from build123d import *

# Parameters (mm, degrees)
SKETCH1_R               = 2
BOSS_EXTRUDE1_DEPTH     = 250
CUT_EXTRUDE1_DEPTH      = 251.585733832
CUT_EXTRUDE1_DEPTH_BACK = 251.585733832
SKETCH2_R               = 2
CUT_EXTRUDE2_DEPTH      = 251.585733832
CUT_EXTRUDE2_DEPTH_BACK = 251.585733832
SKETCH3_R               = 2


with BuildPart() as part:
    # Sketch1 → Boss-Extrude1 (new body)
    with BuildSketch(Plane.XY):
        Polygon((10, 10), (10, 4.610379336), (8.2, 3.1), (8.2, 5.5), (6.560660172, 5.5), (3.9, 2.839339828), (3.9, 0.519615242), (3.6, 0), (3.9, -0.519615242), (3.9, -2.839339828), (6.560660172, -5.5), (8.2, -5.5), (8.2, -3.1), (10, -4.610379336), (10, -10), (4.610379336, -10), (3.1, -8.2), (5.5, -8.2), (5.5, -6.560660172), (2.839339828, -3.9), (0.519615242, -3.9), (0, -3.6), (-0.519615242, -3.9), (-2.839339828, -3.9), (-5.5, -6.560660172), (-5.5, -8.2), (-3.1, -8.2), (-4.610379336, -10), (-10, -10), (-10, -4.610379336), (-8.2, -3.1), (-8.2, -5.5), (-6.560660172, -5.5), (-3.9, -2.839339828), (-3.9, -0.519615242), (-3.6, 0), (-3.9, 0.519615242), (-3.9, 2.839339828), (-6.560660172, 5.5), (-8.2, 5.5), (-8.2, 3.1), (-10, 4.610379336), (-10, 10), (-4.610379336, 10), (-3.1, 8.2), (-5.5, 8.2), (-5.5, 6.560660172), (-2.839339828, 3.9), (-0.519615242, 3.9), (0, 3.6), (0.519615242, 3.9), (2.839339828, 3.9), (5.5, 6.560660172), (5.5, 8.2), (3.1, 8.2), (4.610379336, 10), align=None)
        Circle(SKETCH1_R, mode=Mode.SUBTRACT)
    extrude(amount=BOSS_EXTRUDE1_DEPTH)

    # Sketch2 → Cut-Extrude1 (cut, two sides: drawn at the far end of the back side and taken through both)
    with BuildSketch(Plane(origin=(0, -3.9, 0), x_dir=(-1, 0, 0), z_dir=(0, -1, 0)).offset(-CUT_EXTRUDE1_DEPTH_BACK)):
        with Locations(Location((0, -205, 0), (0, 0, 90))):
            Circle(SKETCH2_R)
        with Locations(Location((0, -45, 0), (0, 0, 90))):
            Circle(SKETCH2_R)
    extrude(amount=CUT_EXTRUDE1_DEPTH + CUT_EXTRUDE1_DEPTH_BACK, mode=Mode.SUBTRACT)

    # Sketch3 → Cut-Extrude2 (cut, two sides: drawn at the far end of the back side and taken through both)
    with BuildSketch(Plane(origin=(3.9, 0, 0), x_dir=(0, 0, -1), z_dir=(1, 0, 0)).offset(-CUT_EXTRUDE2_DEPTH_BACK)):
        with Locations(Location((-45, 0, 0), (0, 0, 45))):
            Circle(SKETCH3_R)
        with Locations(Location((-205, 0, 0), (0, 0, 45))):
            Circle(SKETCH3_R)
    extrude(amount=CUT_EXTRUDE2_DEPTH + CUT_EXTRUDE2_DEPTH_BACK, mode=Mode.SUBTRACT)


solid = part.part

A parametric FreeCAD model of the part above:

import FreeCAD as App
import Part
import Sketcher
from FreeCAD import Vector
Q = App.Units.Quantity

doc = App.newDocument("Part")
params = doc.addObject("Spreadsheet::Sheet", "Params")
for row, (alias, value) in enumerate([
    ("sketch1_diameter", "4 mm"),
    ("sketch1_width", "2.4 mm"),
    ("sketch1_length", "0.6 mm"),
    ("pad1_length", "250 mm"),
    ("sketch2_diameter", "4 mm"),
    ("sketch3_diameter", "4 mm"),
], start=1):
    params.set(f"A{row}", alias)
    params.set(f"B{row}", "=" + value)
    params.setAlias(f"B{row}", alias)

body = doc.addObject("PartDesign::Body", "Body")

sketch1 = body.newObject("Sketcher::SketchObject", "Sketch")
sketch1.AttachmentSupport = (doc.getObject("XY_Plane"), [""])
sketch1.MapMode = "FlatFace"
sketch1.addGeometry([
    Part.LineSegment(Vector(10, 4.6, 0), Vector(10, 10, 0)),
    Part.LineSegment(Vector(10, 10, 0), Vector(4.6, 10, 0)),
    Part.LineSegment(Vector(4.6, 10, 0), Vector(3.1, 8.2, 0)),
    Part.LineSegment(Vector(3.1, 8.2, 0), Vector(5.5, 8.2, 0)),
    Part.LineSegment(Vector(5.5, 8.2, 0), Vector(5.5, 6.6, 0)),
    Part.LineSegment(Vector(5.5, 6.6, 0), Vector(2.8, 3.9, 0)),
    Part.LineSegment(Vector(2.8, 3.9, 0), Vector(0.5, 3.9, 0)),
    Part.LineSegment(Vector(0.5, 3.9, 0), Vector(0, 3.6, 0)),
    Part.LineSegment(Vector(0, 3.6, 0), Vector(-0.5, 3.9, 0)),
    Part.LineSegment(Vector(-0.5, 3.9, 0), Vector(-2.8, 3.9, 0)),
    Part.LineSegment(Vector(-2.8, 3.9, 0), Vector(-5.5, 6.6, 0)),
    Part.LineSegment(Vector(-5.5, 6.6, 0), Vector(-5.5, 8.2, 0)),
    Part.LineSegment(Vector(-5.5, 8.2, 0), Vector(-3.1, 8.2, 0)),
    Part.LineSegment(Vector(-3.1, 8.2, 0), Vector(-4.6, 10, 0)),
    Part.LineSegment(Vector(-4.6, 10, 0), Vector(-10, 10, 0)),
    Part.LineSegment(Vector(-10, 10, 0), Vector(-10, 4.6, 0)),
    Part.LineSegment(Vector(-10, 4.6, 0), Vector(-8.2, 3.1, 0)),
    Part.LineSegment(Vector(-8.2, 3.1, 0), Vector(-8.2, 5.5, 0)),
    Part.LineSegment(Vector(-8.2, 5.5, 0), Vector(-6.6, 5.5, 0)),
    Part.LineSegment(Vector(-6.6, 5.5, 0), Vector(-3.9, 2.8, 0)),
    Part.LineSegment(Vector(-3.9, 2.8, 0), Vector(-3.9, 0.5, 0)),
    Part.LineSegment(Vector(-3.9, 0.5, 0), Vector(-3.6, 0, 0)),
    Part.LineSegment(Vector(-3.6, 0, 0), Vector(-3.9, -0.5, 0)),
    Part.LineSegment(Vector(-3.9, -0.5, 0), Vector(-3.9, -2.8, 0)),
    Part.LineSegment(Vector(-3.9, -2.8, 0), Vector(-6.6, -5.5, 0)),
    Part.LineSegment(Vector(-6.6, -5.5, 0), Vector(-8.2, -5.5, 0)),
    Part.LineSegment(Vector(-8.2, -5.5, 0), Vector(-8.2, -3.1, 0)),
    Part.LineSegment(Vector(-8.2, -3.1, 0), Vector(-10, -4.6, 0)),
    Part.LineSegment(Vector(-10, -4.6, 0), Vector(-10, -10, 0)),
    Part.LineSegment(Vector(-10, -10, 0), Vector(-4.6, -10, 0)),
    Part.LineSegment(Vector(-4.6, -10, 0), Vector(-3.1, -8.2, 0)),
    Part.LineSegment(Vector(-3.1, -8.2, 0), Vector(-5.5, -8.2, 0)),
    Part.LineSegment(Vector(-5.5, -8.2, 0), Vector(-5.5, -6.6, 0)),
    Part.LineSegment(Vector(-5.5, -6.6, 0), Vector(-2.8, -3.9, 0)),
    Part.LineSegment(Vector(-2.8, -3.9, 0), Vector(-0.5, -3.9, 0)),
    Part.LineSegment(Vector(-0.5, -3.9, 0), Vector(0, -3.6, 0)),
    Part.LineSegment(Vector(0, -3.6, 0), Vector(0.5, -3.9, 0)),
    Part.LineSegment(Vector(0.5, -3.9, 0), Vector(2.8, -3.9, 0)),
    Part.LineSegment(Vector(2.8, -3.9, 0), Vector(5.5, -6.6, 0)),
    Part.LineSegment(Vector(5.5, -6.6, 0), Vector(5.5, -8.2, 0)),
    Part.LineSegment(Vector(5.5, -8.2, 0), Vector(3.1, -8.2, 0)),
    Part.LineSegment(Vector(3.1, -8.2, 0), Vector(4.6, -10, 0)),
    Part.LineSegment(Vector(4.6, -10, 0), Vector(10, -10, 0)),
    Part.LineSegment(Vector(10, -10, 0), Vector(10, -4.6, 0)),
    Part.LineSegment(Vector(10, -4.6, 0), Vector(8.2, -3.1, 0)),
    Part.LineSegment(Vector(8.2, -3.1, 0), Vector(8.2, -5.5, 0)),
    Part.LineSegment(Vector(8.2, -5.5, 0), Vector(6.6, -5.5, 0)),
    Part.LineSegment(Vector(6.6, -5.5, 0), Vector(3.9, -2.8, 0)),
    Part.LineSegment(Vector(3.9, -2.8, 0), Vector(3.9, -0.5, 0)),
    Part.LineSegment(Vector(3.9, -0.5, 0), Vector(3.6, 0, 0)),
    Part.LineSegment(Vector(3.6, 0, 0), Vector(3.9, 0.5, 0)),
    Part.LineSegment(Vector(3.9, 0.5, 0), Vector(3.9, 2.8, 0)),
    Part.LineSegment(Vector(3.9, 2.8, 0), Vector(6.6, 5.5, 0)),
    Part.LineSegment(Vector(6.6, 5.5, 0), Vector(8.2, 5.5, 0)),
    Part.LineSegment(Vector(8.2, 5.5, 0), Vector(8.2, 3.1, 0)),
    Part.LineSegment(Vector(8.2, 3.1, 0), Vector(10, 4.6, 0)),
    Part.Circle(Vector(0, 0, 0), Vector(0, 0, 1), 2),
], False)
sketch1.addConstraint([
    Sketcher.Constraint("Coincident", 0, 2, 1, 1),
    Sketcher.Constraint("Coincident", 1, 2, 2, 1),
    Sketcher.Constraint("Coincident", 2, 2, 3, 1),
    Sketcher.Constraint("Coincident", 3, 2, 4, 1),
    Sketcher.Constraint("Coincident", 4, 2, 5, 1),
    Sketcher.Constraint("Coincident", 5, 2, 6, 1),
    Sketcher.Constraint("Coincident", 6, 2, 7, 1),
    Sketcher.Constraint("Coincident", 7, 2, 8, 1),
    Sketcher.Constraint("Coincident", 8, 2, 9, 1),
    Sketcher.Constraint("Coincident", 9, 2, 10, 1),
    Sketcher.Constraint("Coincident", 10, 2, 11, 1),
    Sketcher.Constraint("Coincident", 11, 2, 12, 1),
    Sketcher.Constraint("Coincident", 12, 2, 13, 1),
    Sketcher.Constraint("Coincident", 13, 2, 14, 1),
    Sketcher.Constraint("Coincident", 14, 2, 15, 1),
    Sketcher.Constraint("Coincident", 15, 2, 16, 1),
    Sketcher.Constraint("Coincident", 16, 2, 17, 1),
    Sketcher.Constraint("Coincident", 17, 2, 18, 1),
    Sketcher.Constraint("Coincident", 18, 2, 19, 1),
    Sketcher.Constraint("Coincident", 19, 2, 20, 1),
    Sketcher.Constraint("Coincident", 20, 2, 21, 1),
    Sketcher.Constraint("Coincident", 21, 2, 22, 1),
    Sketcher.Constraint("Coincident", 22, 2, 23, 1),
    Sketcher.Constraint("Coincident", 23, 2, 24, 1),
    Sketcher.Constraint("Coincident", 24, 2, 25, 1),
    Sketcher.Constraint("Coincident", 25, 2, 26, 1),
    Sketcher.Constraint("Coincident", 26, 2, 27, 1),
    Sketcher.Constraint("Coincident", 27, 2, 28, 1),
    Sketcher.Constraint("Coincident", 28, 2, 29, 1),
    Sketcher.Constraint("Coincident", 29, 2, 30, 1),
    Sketcher.Constraint("Coincident", 30, 2, 31, 1),
    Sketcher.Constraint("Coincident", 31, 2, 32, 1),
    Sketcher.Constraint("Coincident", 32, 2, 33, 1),
    Sketcher.Constraint("Coincident", 33, 2, 34, 1),
    Sketcher.Constraint("Coincident", 34, 2, 35, 1),
    Sketcher.Constraint("Coincident", 35, 2, 36, 1),
    Sketcher.Constraint("Coincident", 36, 2, 37, 1),
    Sketcher.Constraint("Coincident", 37, 2, 38, 1),
    Sketcher.Constraint("Coincident", 38, 2, 39, 1),
    Sketcher.Constraint("Coincident", 39, 2, 40, 1),
    Sketcher.Constraint("Coincident", 40, 2, 41, 1),
    Sketcher.Constraint("Coincident", 41, 2, 42, 1),
    Sketcher.Constraint("Coincident", 42, 2, 43, 1),
    Sketcher.Constraint("Coincident", 43, 2, 44, 1),
    Sketcher.Constraint("Coincident", 44, 2, 45, 1),
    Sketcher.Constraint("Coincident", 45, 2, 46, 1),
    Sketcher.Constraint("Coincident", 46, 2, 47, 1),
    Sketcher.Constraint("Coincident", 47, 2, 48, 1),
    Sketcher.Constraint("Coincident", 48, 2, 49, 1),
    Sketcher.Constraint("Coincident", 49, 2, 50, 1),
    Sketcher.Constraint("Coincident", 50, 2, 51, 1),
    Sketcher.Constraint("Coincident", 51, 2, 52, 1),
    Sketcher.Constraint("Coincident", 52, 2, 53, 1),
    Sketcher.Constraint("Coincident", 53, 2, 54, 1),
    Sketcher.Constraint("Coincident", 54, 2, 55, 1),
    Sketcher.Constraint("Coincident", 55, 2, 0, 1),
    Sketcher.Constraint("Vertical", 0),
    Sketcher.Constraint("Horizontal", 1),
    Sketcher.Constraint("Horizontal", 3),
    Sketcher.Constraint("Vertical", 4),
    Sketcher.Constraint("Horizontal", 6),
    Sketcher.Constraint("Horizontal", 9),
    Sketcher.Constraint("Vertical", 11),
    Sketcher.Constraint("Horizontal", 12),
    Sketcher.Constraint("Horizontal", 14),
    Sketcher.Constraint("Vertical", 15),
    Sketcher.Constraint("Vertical", 17),
    Sketcher.Constraint("Horizontal", 18),
    Sketcher.Constraint("Vertical", 20),
    Sketcher.Constraint("Vertical", 23),
    Sketcher.Constraint("Horizontal", 25),
    Sketcher.Constraint("Vertical", 26),
    Sketcher.Constraint("Vertical", 28),
    Sketcher.Constraint("Horizontal", 29),
    Sketcher.Constraint("Horizontal", 31),
    Sketcher.Constraint("Vertical", 32),
    Sketcher.Constraint("Horizontal", 34),
    Sketcher.Constraint("Horizontal", 37),
    Sketcher.Constraint("Vertical", 39),
    Sketcher.Constraint("Horizontal", 40),
    Sketcher.Constraint("Horizontal", 42),
    Sketcher.Constraint("Vertical", 43),
    Sketcher.Constraint("Vertical", 45),
    Sketcher.Constraint("Horizontal", 46),
    Sketcher.Constraint("Vertical", 48),
    Sketcher.Constraint("Vertical", 51),
    Sketcher.Constraint("Horizontal", 53),
    Sketcher.Constraint("Vertical", 54),
    Sketcher.Constraint("Coincident", 56, 3, -1, 1),
    Sketcher.Constraint("Symmetric", 0, 2, 28, 2, -1, 1),
    Sketcher.Constraint("Symmetric", 2, 2, 30, 2, -1, 1),
    Sketcher.Constraint("Symmetric", 4, 2, 32, 2, -1, 1),
    Sketcher.Constraint("Symmetric", 5, 2, 33, 2, -1, 1),
    Sketcher.Constraint("Symmetric", 7, 2, 35, 2, -1, 1),
    Sketcher.Constraint("Symmetric", 8, 2, 36, 2, -1, 1),
    Sketcher.Constraint("Symmetric", 10, 2, 38, 2, -1, 1),
    Sketcher.Constraint("Symmetric", 12, 2, 40, 2, -1, 1),
    Sketcher.Constraint("Symmetric", 13, 2, 41, 2, -1, 1),
    Sketcher.Constraint("Symmetric", 15, 2, 43, 2, -1, 1),
    Sketcher.Constraint("Symmetric", 16, 2, 44, 2, -1, 1),
    Sketcher.Constraint("Symmetric", 18, 2, 46, 2, -1, 1),
    Sketcher.Constraint("Symmetric", 19, 2, 47, 2, -1, 1),
    Sketcher.Constraint("Symmetric", 21, 2, 49, 2, -1, 1),
    Sketcher.Constraint("Symmetric", 22, 2, 50, 2, -1, 1),
    Sketcher.Constraint("Symmetric", 24, 2, 52, 2, -1, 1),
    Sketcher.Constraint("Symmetric", 26, 2, 54, 2, -1, 1),
    Sketcher.Constraint("Symmetric", 6, 2, 8, 2, -2),
    Sketcher.Constraint("Symmetric", 4, 2, 10, 2, -2),
    Sketcher.Constraint("Symmetric", 2, 2, 12, 2, -2),
    Sketcher.Constraint("Symmetric", 1, 2, 13, 2, -2),
    Sketcher.Constraint("Symmetric", 27, 2, 43, 2, -2),
    Sketcher.Constraint("Symmetric", 26, 2, 44, 2, -2),
    Sketcher.Constraint("Symmetric", 24, 2, 46, 2, -2),
    Sketcher.Constraint("Symmetric", 23, 2, 47, 2, -2),
    Sketcher.Constraint("PointOnObject", 7, 2, -2),
    Sketcher.Constraint("PointOnObject", 21, 2, -1),
    Sketcher.Constraint("Perpendicular", 5, 10),
    Sketcher.Constraint("Perpendicular", 2, 16),
    Sketcher.Constraint("Parallel", 10, 19),
    Sketcher.Constraint("Perpendicular", 7, 21),
    Sketcher.Constraint("Perpendicular", 8, 22),
    Sketcher.Constraint("Perpendicular", 19, 24),
    Sketcher.Constraint("Perpendicular", 16, 30),
    Sketcher.Constraint("Perpendicular", 21, 35),
    Sketcher.Constraint("Perpendicular", 33, 38),
    Sketcher.Constraint("Perpendicular", 35, 49),
    Sketcher.Constraint("Perpendicular", 47, 52),
    Sketcher.Constraint("Perpendicular", 41, 55),
    Sketcher.Constraint("Equal", 42, 0),
    Sketcher.Constraint("Equal", 53, 4),
    Sketcher.Constraint("Equal", 40, 17),
    Sketcher.Constraint("Equal", 37, 20),
    Sketcher.Constraint("Equal", 13, 16),
    Sketcher.Constraint("Equal", 10, 19),
    Sketcher.Constraint("Equal", 8, 21),
    Sketcher.Constraint("Diameter", 56, 4.0),
    Sketcher.Constraint("Angle", 2, Q("-130 deg")),
    Sketcher.Constraint("Angle", 7, Q("-150 deg")),
    Sketcher.Constraint("DistanceX", 3, 1, 3, 2, 2.4),
    Sketcher.Constraint("DistanceX", -1, 1, 0, 2, 10.0),
    Sketcher.Constraint("Distance", 7, 0.6),
    Sketcher.Constraint("DistanceX", -1, 1, 2, 2, 3.1),
    Sketcher.Constraint("DistanceY", -1, 1, 2, 2, 8.2),
    Sketcher.Constraint("DistanceY", -1, 1, 5, 2, 3.9),
    Sketcher.Constraint("DistanceX", 18, 1, 18, 2, 1.63934),
])
sketch1.setExpression("Constraints[135]", "Params.sketch1_diameter")
sketch1.setExpression("Constraints[138]", "Params.sketch1_width")
sketch1.setExpression("Constraints[140]", "Params.sketch1_length")
pad1 = body.newObject("PartDesign::Pad", "Pad")
pad1.Profile = sketch1
pad1.setExpression("Length", "Params.pad1_length")

sketch2 = body.newObject("Sketcher::SketchObject", "Sketch001")
sketch2.AttachmentSupport = (doc.getObject("XZ_Plane"), [""])
sketch2.MapMode = "FlatFace"
sketch2.AttachmentOffset = App.Placement(Vector(0, 0, 3.9), App.Rotation())
sketch2.addGeometry([
    Part.Circle(Vector(0, 205, 0), Vector(0, 0, 1), 2),
    Part.Circle(Vector(0, 45, 0), Vector(0, 0, 1), 2),
], False)
sketch2.addConstraint([
    Sketcher.Constraint("Equal", 0, 1),
    Sketcher.Constraint("PointOnObject", 0, 3, -2),
    Sketcher.Constraint("PointOnObject", 1, 3, -2),
    Sketcher.Constraint("Diameter", 0, 4.0),
    Sketcher.Constraint("DistanceY", -1, 1, 0, 3, 205.0),
    Sketcher.Constraint("DistanceY", -1, 1, 1, 3, 45.0),
])
sketch2.setExpression("Constraints[3]", "Params.sketch2_diameter")
pocket1 = body.newObject("PartDesign::Pocket", "Pocket")
pocket1.Profile = sketch2
pocket1.Type = "ThroughAll"
pocket1.Midplane = True

sketch3 = body.newObject("Sketcher::SketchObject", "Sketch002")
sketch3.AttachmentSupport = (doc.getObject("YZ_Plane"), [""])
sketch3.MapMode = "FlatFace"
sketch3.AttachmentOffset = App.Placement(Vector(0, 0, 3.9), App.Rotation())
sketch3.addGeometry([
    Part.Circle(Vector(0, 45, 0), Vector(0, 0, 1), 2),
    Part.Circle(Vector(0, 205, 0), Vector(0, 0, 1), 2),
], False)
sketch3.addConstraint([
    Sketcher.Constraint("Equal", 0, 1),
    Sketcher.Constraint("PointOnObject", 0, 3, -2),
    Sketcher.Constraint("PointOnObject", 1, 3, -2),
    Sketcher.Constraint("Diameter", 0, 4.0),
    Sketcher.Constraint("DistanceY", -1, 1, 0, 3, 45.0),
    Sketcher.Constraint("DistanceY", -1, 1, 1, 3, 205.0),
])
sketch3.setExpression("Constraints[3]", "Params.sketch3_diameter")
pocket2 = body.newObject("PartDesign::Pocket", "Pocket001")
pocket2.Profile = sketch3
pocket2.Type = "ThroughAll"
pocket2.Midplane = True

doc.recompute()
